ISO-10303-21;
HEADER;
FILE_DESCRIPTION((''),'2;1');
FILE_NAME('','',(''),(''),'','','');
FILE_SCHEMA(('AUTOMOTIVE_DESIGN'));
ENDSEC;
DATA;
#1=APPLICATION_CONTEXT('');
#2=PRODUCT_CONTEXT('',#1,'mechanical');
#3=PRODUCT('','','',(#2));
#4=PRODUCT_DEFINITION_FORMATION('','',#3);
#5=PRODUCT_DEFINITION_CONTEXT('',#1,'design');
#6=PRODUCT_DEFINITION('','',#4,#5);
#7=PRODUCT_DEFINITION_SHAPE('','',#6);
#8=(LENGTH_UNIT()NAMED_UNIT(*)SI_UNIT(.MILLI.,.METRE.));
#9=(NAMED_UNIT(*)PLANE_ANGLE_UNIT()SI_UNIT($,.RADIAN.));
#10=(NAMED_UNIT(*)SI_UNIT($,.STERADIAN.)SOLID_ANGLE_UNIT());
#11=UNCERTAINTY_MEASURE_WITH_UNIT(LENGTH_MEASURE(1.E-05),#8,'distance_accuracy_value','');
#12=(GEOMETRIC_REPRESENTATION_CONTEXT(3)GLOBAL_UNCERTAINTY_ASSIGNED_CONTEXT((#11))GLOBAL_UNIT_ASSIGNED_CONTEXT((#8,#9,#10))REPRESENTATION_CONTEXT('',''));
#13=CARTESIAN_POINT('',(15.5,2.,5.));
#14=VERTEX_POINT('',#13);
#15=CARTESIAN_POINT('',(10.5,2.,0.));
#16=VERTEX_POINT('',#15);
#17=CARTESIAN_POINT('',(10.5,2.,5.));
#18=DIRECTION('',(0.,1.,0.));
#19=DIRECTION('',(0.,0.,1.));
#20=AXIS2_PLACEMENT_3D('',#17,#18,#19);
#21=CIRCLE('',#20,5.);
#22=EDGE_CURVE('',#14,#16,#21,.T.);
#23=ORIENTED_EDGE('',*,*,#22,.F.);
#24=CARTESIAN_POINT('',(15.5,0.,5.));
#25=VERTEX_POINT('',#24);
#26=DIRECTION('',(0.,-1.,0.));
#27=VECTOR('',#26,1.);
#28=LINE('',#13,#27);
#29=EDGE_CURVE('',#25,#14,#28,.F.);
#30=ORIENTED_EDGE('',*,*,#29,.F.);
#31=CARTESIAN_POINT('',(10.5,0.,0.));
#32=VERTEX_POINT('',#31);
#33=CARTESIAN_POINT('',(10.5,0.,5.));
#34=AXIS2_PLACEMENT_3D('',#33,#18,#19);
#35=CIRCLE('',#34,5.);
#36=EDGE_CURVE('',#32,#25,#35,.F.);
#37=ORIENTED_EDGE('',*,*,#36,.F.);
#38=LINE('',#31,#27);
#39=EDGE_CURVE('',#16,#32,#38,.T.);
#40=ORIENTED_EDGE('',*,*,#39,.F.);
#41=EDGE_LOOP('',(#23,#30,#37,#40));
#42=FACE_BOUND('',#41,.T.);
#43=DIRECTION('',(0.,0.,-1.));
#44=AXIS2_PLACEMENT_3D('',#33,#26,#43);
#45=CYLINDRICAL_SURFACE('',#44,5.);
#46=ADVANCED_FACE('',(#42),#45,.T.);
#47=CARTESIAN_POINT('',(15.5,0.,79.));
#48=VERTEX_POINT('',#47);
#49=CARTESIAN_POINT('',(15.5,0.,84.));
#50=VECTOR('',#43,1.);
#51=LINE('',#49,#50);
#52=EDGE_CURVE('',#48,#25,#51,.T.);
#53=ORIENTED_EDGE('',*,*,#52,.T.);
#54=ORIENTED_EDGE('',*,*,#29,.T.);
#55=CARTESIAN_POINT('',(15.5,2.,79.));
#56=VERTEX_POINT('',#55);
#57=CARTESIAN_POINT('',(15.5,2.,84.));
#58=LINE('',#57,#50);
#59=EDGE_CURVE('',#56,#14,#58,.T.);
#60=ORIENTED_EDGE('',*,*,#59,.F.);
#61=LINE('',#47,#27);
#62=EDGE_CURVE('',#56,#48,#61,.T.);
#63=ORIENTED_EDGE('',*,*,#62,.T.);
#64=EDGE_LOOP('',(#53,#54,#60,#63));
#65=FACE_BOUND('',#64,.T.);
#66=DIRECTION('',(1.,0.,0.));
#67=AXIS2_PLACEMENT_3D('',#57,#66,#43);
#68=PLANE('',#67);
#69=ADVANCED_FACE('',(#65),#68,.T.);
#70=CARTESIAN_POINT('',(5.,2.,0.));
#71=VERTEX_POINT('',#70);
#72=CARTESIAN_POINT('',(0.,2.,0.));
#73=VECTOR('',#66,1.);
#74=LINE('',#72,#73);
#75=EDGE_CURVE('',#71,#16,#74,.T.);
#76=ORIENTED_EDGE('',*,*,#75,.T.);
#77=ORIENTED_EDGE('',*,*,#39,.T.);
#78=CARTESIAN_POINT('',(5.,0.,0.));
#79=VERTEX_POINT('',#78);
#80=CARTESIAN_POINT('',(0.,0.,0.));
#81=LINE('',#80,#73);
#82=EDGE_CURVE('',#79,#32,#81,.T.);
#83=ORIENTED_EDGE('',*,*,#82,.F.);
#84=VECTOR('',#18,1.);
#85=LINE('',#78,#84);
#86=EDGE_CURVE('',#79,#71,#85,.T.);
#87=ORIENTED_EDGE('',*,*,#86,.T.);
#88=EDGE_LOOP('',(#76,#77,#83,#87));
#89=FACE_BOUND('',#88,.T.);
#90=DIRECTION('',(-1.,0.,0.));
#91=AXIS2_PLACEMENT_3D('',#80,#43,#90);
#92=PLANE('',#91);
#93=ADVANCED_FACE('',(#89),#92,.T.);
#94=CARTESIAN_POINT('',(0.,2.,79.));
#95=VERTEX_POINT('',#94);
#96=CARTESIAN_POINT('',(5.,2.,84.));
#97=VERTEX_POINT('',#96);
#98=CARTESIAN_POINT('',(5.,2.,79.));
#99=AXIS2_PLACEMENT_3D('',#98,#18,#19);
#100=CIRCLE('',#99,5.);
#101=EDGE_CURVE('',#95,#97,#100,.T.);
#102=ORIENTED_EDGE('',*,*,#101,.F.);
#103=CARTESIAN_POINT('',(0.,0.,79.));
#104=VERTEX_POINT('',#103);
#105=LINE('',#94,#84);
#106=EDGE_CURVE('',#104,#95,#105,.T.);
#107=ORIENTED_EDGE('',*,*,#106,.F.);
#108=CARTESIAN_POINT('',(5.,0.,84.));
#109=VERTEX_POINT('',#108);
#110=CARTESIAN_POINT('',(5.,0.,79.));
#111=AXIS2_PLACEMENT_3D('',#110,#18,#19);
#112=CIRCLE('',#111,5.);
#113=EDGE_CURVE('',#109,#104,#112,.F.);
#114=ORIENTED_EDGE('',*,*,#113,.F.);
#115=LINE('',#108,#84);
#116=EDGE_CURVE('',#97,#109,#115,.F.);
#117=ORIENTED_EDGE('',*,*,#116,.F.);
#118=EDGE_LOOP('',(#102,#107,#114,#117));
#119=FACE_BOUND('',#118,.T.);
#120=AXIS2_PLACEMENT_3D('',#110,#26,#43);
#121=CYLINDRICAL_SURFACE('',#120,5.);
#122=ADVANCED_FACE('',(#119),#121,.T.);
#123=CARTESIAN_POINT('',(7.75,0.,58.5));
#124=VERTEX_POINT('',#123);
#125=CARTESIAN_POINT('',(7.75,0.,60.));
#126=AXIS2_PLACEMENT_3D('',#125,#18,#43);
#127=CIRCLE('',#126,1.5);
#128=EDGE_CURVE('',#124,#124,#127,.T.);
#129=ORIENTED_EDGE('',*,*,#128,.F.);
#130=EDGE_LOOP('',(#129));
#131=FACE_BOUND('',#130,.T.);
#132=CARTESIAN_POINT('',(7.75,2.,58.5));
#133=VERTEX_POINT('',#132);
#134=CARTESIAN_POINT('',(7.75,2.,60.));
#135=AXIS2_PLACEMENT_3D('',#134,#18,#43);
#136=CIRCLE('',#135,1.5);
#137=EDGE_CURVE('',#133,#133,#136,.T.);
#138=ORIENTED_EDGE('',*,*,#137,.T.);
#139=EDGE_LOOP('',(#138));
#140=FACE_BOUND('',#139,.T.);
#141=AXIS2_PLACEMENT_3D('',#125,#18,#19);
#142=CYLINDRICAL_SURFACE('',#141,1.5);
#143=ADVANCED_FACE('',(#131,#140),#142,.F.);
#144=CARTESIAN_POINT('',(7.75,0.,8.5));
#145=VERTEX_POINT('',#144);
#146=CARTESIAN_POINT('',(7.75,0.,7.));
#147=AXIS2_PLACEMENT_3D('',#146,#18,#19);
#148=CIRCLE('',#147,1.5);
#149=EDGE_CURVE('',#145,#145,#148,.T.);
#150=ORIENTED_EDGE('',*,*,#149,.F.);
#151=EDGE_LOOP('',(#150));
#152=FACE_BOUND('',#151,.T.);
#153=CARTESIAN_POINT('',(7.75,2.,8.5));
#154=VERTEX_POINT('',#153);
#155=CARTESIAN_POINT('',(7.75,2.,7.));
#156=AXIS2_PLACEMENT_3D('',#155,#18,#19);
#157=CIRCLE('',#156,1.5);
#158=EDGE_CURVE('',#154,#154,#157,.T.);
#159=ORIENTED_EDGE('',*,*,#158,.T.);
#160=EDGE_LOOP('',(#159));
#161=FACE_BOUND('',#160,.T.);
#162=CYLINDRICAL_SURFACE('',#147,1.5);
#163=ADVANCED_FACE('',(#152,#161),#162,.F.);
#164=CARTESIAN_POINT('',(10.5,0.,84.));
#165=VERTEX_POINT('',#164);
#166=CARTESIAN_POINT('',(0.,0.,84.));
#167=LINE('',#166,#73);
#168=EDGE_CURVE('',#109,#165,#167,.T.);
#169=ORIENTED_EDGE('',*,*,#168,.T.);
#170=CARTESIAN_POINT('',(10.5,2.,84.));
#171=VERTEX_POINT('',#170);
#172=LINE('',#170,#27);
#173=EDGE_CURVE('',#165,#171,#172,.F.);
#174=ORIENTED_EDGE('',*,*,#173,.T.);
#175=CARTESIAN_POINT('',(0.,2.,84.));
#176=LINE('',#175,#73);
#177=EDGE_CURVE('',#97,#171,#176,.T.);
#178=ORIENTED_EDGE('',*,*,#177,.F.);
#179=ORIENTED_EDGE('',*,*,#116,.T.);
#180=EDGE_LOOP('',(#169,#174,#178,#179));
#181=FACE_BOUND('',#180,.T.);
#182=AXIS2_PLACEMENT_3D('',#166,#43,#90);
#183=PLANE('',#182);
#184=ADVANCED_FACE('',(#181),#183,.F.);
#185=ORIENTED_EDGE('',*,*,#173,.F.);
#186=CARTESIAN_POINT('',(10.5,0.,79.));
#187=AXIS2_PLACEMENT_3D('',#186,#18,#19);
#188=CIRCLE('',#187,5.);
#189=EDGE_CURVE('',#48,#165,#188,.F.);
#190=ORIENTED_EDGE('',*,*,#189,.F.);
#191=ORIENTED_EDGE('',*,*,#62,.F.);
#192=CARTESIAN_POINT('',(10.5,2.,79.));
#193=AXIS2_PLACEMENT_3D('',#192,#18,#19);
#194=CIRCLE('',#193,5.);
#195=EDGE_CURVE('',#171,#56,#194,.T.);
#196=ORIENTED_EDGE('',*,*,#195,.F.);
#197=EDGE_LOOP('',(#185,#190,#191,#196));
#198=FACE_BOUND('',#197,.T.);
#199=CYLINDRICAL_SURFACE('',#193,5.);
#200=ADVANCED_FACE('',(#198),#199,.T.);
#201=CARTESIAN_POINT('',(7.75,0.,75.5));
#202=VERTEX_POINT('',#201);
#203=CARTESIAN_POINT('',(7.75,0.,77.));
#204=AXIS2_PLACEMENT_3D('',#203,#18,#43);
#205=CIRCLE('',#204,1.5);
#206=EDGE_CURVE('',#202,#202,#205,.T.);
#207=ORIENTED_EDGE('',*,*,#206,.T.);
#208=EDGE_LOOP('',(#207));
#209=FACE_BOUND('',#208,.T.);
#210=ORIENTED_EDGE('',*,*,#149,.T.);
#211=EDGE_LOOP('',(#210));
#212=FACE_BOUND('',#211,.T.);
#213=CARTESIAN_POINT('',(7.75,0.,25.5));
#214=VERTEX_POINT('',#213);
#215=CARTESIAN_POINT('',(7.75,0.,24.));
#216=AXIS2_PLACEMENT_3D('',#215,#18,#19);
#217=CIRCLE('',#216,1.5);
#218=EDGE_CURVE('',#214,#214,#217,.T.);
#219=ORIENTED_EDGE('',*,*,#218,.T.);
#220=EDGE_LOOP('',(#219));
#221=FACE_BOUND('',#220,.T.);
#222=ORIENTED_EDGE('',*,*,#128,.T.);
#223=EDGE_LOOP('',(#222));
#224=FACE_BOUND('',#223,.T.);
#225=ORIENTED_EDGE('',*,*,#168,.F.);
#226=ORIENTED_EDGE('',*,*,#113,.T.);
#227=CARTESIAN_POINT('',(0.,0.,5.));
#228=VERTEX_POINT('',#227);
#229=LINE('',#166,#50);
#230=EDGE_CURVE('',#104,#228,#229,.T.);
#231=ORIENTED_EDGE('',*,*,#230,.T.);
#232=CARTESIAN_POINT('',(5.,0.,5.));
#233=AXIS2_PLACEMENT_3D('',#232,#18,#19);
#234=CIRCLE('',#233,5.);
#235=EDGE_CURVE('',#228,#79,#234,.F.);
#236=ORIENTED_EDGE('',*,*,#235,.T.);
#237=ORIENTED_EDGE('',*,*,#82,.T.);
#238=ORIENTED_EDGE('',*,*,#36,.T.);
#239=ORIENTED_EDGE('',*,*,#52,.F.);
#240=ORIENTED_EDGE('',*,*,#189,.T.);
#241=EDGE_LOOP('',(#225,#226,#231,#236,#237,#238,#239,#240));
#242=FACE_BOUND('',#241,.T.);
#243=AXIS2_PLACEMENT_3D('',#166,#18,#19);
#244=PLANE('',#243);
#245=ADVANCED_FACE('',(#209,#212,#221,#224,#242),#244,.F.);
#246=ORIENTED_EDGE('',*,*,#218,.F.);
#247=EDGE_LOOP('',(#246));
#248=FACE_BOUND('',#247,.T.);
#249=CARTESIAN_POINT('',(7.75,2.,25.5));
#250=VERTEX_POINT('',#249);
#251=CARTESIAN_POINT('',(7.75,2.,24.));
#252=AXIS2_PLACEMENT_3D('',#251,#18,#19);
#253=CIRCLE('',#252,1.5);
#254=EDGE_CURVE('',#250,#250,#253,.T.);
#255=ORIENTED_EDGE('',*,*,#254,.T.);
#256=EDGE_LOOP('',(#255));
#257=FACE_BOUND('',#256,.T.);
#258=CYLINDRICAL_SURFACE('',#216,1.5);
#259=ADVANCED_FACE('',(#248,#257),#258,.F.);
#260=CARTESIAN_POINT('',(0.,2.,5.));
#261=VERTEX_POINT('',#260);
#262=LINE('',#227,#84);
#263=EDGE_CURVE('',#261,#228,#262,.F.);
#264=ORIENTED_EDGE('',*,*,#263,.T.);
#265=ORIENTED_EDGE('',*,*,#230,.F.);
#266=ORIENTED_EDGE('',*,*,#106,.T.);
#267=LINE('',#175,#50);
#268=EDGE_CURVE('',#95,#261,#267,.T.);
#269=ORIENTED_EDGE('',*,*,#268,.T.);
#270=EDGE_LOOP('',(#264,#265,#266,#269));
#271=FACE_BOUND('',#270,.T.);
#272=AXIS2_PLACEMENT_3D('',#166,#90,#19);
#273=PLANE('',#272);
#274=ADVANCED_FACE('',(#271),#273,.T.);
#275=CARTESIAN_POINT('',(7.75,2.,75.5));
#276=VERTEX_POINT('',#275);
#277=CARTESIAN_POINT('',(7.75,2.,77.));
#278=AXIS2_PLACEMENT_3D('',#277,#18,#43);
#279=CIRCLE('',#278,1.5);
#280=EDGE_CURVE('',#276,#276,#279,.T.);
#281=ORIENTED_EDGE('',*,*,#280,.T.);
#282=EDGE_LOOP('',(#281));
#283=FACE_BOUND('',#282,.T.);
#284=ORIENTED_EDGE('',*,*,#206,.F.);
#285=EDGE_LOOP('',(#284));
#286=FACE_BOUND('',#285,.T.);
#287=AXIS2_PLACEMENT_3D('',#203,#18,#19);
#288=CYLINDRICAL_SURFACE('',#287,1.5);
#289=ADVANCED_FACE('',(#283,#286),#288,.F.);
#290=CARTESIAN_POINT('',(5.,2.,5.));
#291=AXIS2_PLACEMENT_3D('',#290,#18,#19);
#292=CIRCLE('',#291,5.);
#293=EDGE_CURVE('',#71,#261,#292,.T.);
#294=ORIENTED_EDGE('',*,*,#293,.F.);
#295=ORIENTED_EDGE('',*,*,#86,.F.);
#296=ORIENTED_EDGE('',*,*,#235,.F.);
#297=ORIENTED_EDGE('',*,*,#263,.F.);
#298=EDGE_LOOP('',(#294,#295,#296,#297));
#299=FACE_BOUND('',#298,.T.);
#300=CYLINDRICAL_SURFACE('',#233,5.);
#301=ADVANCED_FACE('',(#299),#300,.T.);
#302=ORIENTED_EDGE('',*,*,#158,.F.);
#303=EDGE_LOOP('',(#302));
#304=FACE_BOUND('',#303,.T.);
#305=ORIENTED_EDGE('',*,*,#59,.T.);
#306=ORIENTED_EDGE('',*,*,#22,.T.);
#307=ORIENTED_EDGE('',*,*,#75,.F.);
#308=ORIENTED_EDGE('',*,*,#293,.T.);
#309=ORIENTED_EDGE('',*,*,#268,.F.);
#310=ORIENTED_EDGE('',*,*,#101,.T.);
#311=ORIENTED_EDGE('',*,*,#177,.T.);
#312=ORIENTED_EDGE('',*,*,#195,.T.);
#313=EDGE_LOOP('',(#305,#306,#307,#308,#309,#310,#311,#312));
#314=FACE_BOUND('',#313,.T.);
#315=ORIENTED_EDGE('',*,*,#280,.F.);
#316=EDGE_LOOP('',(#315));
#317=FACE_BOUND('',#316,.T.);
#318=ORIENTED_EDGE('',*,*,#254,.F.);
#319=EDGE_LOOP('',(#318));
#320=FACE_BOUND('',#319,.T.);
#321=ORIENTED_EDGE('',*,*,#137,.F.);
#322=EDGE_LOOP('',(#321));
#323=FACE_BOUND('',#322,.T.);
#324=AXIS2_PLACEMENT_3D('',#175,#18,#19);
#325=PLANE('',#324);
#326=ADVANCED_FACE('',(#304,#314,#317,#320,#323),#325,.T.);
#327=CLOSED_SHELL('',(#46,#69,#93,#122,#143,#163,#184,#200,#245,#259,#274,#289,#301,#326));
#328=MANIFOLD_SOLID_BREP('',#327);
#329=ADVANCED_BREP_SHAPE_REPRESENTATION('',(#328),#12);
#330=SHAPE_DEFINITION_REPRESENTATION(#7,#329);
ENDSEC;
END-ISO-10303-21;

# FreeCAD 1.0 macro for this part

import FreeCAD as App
import Part
import Sketcher
from FreeCAD import Vector
Q = App.Units.Quantity


def edges_at(feature, points):
    """Names of the edges that pass closest to the given points."""
    edges = feature.Shape.Edges
    near = lambda p: min(range(len(edges)), key=lambda i: edges[i].distToShape(Part.Vertex(*p))[0])
    return sorted({f"Edge{near(p) + 1}" for p in points})


def add_polygon(sketch, points):
    """Adds a closed chain of lines whose ends are joined by coincident constraints."""
    first, n = sketch.GeometryCount, len(points)
    for a, b in zip(points, points[1:] + points[:1]):
        sketch.addGeometry(Part.LineSegment(App.Vector(*a, 0), App.Vector(*b, 0)), False)
    for i in range(n):
        sketch.addConstraint(Sketcher.Constraint("Coincident", first + i, 2, first + (i + 1) % n, 1))

doc = App.newDocument("Part")
params = doc.addObject("Spreadsheet::Sheet", "Params")
for row, (alias, value) in enumerate([
    ("sketch1_height", "2 mm"),
    ("sketch1_width", "15.5 mm"),
    ("pad1_length", "84 mm"),
    ("sketch2_diameter", "3 mm"),
    ("fillet_radius", "5 mm"),
], start=1):
    params.set(f"A{row}", alias)
    params.set(f"B{row}", "=" + value)
    params.setAlias(f"B{row}", alias)

body = doc.addObject("PartDesign::Body", "Body")

# Sketch on XY plane
sketch1 = body.newObject("Sketcher::SketchObject", "Sketch")
sketch1.AttachmentSupport = (doc.getObject("XY_Plane"), [""])
sketch1.MapMode = "FlatFace"
add_polygon(sketch1, [(0, 2), (0, 0), (15.5, 0), (15.5, 2)])  # lines 0-3
sketch1.addConstraint(Sketcher.Constraint("Vertical", 0))
sketch1.addConstraint(Sketcher.Constraint("Horizontal", 1))
sketch1.addConstraint(Sketcher.Constraint("Vertical", 2))
sketch1.addConstraint(Sketcher.Constraint("Horizontal", 3))
sketch1.addConstraint(Sketcher.Constraint("Coincident", 0, 2, -1, 1))
sketch1.addConstraint(Sketcher.Constraint("DistanceY", 0, 2, 0, 1, Q("2 mm")))
sketch1.addConstraint(Sketcher.Constraint("DistanceX", 1, 1, 1, 2, Q("15.5 mm")))
sketch1.setExpression("Constraints[9]", "Params.sketch1_height")
sketch1.setExpression("Constraints[10]", "Params.sketch1_width")
pad1 = body.newObject("PartDesign::Pad", "Pad")
pad1.Profile = sketch1
pad1.setExpression("Length", "Params.pad1_length")

# Sketch on XZ plane
sketch2 = body.newObject("Sketcher::SketchObject", "Sketch001")
sketch2.AttachmentSupport = (doc.getObject("XZ_Plane"), [""])
sketch2.MapMode = "FlatFace"
sketch2.AttachmentOffset = App.Placement(Vector(0, 0, -2), App.Rotation())
sketch2.addGeometry(Part.Circle(Vector(7.8, 24, 0), Vector(0, 0, 1), 1.5), False)
sketch2.addGeometry(Part.Circle(Vector(7.8, 7, 0), Vector(0, 0, 1), 1.5), False)
sketch2.addGeometry(Part.Circle(Vector(7.8, 77, 0), Vector(0, 0, 1), 1.5), False)
sketch2.addGeometry(Part.Circle(Vector(7.8, 60, 0), Vector(0, 0, 1), 1.5), False)
sketch2.addConstraint(Sketcher.Constraint("Equal", 0, 1))
sketch2.addConstraint(Sketcher.Constraint("Equal", 1, 2))
sketch2.addConstraint(Sketcher.Constraint("Equal", 2, 3))
sketch2.addConstraint(Sketcher.Constraint("Vertical", 0, 3, 1, 3))
sketch2.addConstraint(Sketcher.Constraint("Vertical", 1, 3, 2, 3))
sketch2.addConstraint(Sketcher.Constraint("Vertical", 2, 3, 3, 3))
sketch2.addConstraint(Sketcher.Constraint("Diameter", 0, Q("3 mm")))
sketch2.addConstraint(Sketcher.Constraint("DistanceY", -1, 1, 0, 3, Q("24 mm")))
sketch2.addConstraint(Sketcher.Constraint("DistanceY", -1, 1, 1, 3, Q("7 mm")))
sketch2.addConstraint(Sketcher.Constraint("DistanceY", -1, 1, 2, 3, Q("77 mm")))
sketch2.addConstraint(Sketcher.Constraint("DistanceY", -1, 1, 3, 3, Q("60 mm")))
sketch2.addConstraint(Sketcher.Constraint("DistanceX", -1, 1, 0, 3, Q("7.75 mm")))
sketch2.setExpression("Constraints[6]", "Params.sketch2_diameter")
pocket1 = body.newObject("PartDesign::Pocket", "Pocket")
pocket1.Profile = sketch2
pocket1.Type = "ThroughAll"
pocket1.Reversed = True
doc.recompute()

fillet = body.newObject("PartDesign::Fillet", "Fillet")
fillet.Base = (pocket1, edges_at(pocket1, [
    (0, 1, 84),
    (0, 1, 0),
    (15.5, 1, 0),
    (15.5, 1, 84),
]))
fillet.setExpression("Radius", "Params.fillet_radius")

doc.recompute()
